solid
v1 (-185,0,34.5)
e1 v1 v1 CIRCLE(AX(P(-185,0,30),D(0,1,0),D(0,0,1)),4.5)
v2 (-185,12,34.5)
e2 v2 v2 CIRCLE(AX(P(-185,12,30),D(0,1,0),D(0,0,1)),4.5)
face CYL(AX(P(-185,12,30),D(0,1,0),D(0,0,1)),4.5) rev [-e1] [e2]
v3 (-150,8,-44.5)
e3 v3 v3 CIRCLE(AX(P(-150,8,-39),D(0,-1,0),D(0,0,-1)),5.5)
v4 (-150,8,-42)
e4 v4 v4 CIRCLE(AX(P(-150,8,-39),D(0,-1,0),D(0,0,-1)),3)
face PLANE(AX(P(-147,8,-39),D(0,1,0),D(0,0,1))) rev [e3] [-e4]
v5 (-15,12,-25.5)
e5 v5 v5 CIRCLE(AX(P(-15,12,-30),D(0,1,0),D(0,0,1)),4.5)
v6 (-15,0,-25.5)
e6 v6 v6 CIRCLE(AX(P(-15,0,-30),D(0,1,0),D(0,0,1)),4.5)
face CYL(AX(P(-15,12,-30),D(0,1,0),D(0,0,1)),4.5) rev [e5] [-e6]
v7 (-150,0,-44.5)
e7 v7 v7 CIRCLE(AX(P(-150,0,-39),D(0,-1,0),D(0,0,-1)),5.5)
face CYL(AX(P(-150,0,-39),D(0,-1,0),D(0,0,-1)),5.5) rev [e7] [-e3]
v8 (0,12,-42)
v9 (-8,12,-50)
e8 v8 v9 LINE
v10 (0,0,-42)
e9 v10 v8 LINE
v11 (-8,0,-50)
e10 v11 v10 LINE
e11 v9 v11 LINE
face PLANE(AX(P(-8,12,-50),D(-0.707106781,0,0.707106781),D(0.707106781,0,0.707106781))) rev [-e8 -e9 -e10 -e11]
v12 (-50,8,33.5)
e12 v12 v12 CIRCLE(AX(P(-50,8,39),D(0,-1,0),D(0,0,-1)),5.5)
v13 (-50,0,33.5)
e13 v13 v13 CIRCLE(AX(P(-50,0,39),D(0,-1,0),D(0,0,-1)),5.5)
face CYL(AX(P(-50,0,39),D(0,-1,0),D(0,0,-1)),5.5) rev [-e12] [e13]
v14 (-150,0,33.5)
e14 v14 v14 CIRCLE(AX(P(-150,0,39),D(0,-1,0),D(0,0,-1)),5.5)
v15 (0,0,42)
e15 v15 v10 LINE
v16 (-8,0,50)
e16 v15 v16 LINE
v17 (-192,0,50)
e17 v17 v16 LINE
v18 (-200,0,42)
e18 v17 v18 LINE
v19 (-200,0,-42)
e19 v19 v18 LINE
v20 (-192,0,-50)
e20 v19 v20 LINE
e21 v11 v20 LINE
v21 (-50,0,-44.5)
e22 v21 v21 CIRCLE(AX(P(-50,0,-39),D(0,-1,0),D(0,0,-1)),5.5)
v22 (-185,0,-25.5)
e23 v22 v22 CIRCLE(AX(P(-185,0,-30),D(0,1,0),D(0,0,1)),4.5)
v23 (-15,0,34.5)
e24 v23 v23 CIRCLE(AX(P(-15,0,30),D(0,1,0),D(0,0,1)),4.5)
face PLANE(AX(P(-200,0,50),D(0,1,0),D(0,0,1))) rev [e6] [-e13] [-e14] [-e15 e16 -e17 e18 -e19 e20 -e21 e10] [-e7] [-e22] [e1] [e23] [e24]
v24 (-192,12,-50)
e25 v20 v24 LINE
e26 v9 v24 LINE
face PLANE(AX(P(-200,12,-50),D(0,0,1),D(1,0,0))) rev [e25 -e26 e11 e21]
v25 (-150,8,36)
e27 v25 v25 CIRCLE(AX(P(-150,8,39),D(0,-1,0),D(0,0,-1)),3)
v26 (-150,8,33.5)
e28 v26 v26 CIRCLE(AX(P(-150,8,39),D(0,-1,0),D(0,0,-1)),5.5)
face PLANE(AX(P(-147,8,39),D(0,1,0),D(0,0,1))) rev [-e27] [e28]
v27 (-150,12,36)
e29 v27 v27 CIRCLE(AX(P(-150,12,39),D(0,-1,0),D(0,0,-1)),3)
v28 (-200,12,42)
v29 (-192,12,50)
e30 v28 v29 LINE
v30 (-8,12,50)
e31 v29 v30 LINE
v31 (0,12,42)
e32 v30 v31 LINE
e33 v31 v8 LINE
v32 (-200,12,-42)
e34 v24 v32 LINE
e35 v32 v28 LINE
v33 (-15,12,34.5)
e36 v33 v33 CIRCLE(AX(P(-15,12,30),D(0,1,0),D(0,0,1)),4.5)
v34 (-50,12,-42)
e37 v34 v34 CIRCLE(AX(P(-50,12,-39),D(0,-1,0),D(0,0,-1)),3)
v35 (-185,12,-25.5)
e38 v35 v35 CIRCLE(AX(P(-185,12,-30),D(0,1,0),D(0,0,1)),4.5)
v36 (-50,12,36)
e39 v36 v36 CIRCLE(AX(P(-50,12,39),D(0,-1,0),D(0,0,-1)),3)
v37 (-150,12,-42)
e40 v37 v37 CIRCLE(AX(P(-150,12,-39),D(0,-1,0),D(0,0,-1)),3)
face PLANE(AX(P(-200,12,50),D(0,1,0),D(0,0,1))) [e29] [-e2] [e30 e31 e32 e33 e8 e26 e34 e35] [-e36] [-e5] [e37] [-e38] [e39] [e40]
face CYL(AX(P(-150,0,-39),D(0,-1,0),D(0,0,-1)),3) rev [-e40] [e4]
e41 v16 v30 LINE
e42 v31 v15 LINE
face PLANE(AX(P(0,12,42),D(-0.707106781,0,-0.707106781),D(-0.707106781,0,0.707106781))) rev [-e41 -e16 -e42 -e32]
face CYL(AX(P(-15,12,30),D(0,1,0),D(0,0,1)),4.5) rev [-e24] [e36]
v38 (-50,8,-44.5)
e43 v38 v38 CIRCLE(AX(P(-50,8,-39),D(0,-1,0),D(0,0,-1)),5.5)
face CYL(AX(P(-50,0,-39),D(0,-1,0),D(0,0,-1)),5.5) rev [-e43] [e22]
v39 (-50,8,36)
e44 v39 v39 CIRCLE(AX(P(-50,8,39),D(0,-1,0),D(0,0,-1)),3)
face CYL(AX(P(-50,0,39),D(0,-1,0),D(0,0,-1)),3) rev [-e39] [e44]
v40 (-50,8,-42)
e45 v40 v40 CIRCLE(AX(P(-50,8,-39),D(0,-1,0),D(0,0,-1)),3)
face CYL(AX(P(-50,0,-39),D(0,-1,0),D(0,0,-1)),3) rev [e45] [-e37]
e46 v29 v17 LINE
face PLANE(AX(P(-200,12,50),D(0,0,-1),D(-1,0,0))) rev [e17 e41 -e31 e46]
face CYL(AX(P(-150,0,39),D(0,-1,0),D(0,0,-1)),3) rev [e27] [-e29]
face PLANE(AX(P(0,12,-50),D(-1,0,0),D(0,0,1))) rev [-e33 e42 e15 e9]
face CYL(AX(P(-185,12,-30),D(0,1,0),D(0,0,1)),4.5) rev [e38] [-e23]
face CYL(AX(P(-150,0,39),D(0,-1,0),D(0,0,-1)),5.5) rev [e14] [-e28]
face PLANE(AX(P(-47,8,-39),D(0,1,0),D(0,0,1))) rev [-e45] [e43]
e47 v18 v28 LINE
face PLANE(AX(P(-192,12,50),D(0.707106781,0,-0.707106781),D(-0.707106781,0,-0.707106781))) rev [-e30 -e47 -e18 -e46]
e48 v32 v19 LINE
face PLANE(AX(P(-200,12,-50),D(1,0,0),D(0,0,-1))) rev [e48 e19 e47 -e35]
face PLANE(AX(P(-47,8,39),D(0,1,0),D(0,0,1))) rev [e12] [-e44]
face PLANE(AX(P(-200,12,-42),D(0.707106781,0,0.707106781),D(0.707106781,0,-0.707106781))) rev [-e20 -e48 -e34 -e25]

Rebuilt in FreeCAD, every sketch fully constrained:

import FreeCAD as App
import Part
import Sketcher
from FreeCAD import Vector


def edges_at(feature, points):
    """Names of the edges that pass closest to the given points."""
    edges = feature.Shape.Edges
    near = lambda p: min(range(len(edges)), key=lambda i: edges[i].distToShape(Part.Vertex(*p))[0])
    return sorted({f"Edge{near(p) + 1}" for p in points})


def add_polygon(sketch, points):
    """Adds a closed chain of lines whose ends are joined by coincident constraints."""
    first, n = sketch.GeometryCount, len(points)
    for a, b in zip(points, points[1:] + points[:1]):
        sketch.addGeometry(Part.LineSegment(App.Vector(*a, 0), App.Vector(*b, 0)), False)
    for i in range(n):
        sketch.addConstraint(Sketcher.Constraint("Coincident", first + i, 2, first + (i + 1) % n, 1))

doc = App.newDocument("Part")
params = doc.addObject("Spreadsheet::Sheet", "Params")
for row, (alias, value) in enumerate([
    ("sketch1_width", "200 mm"),
    ("sketch1_height", "100 mm"),
    ("pad1_length", "12 mm"),
    ("sketch2_diameter", "9 mm"),
    ("hole_diameter", "9 mm"),
    ("sketch3_diameter", "6 mm"),
    ("hole2_diameter", "6 mm"),
    ("hole2_cbore_diameter", "11 mm"),
    ("hole2_cbore_depth", "8 mm"),
    ("chamfer_size", "8 mm"),
], start=1):
    params.set(f"A{row}", alias)
    params.set(f"B{row}", "=" + value)
    params.setAlias(f"B{row}", alias)

body = doc.addObject("PartDesign::Body", "Body")

# Sketch on XZ plane
sketch1 = body.newObject("Sketcher::SketchObject", "Sketch")
sketch1.AttachmentSupport = (doc.getObject("XZ_Plane"), [""])
sketch1.MapMode = "FlatFace"
add_polygon(sketch1, [(-200, -50), (-200, 50), (0, 50), (0, -50)])  # lines 0-3
sketch1.addConstraint(Sketcher.Constraint("Vertical", 0))
sketch1.addConstraint(Sketcher.Constraint("Horizontal", 1))
sketch1.addConstraint(Sketcher.Constraint("Vertical", 2))
sketch1.addConstraint(Sketcher.Constraint("Horizontal", 3))
sketch1.addConstraint(Sketcher.Constraint("Symmetric", 1, 2, 2, 2, -1, 1))
sketch1.addConstraint(Sketcher.Constraint("DistanceX", 1, 1, 1, 2, 200.0))
sketch1.addConstraint(Sketcher.Constraint("DistanceY", 0, 1, 0, 2, 100.0))
sketch1.setExpression("Constraints[9]", "Params.sketch1_width")
sketch1.setExpression("Constraints[10]", "Params.sketch1_height")
pad1 = body.newObject("PartDesign::Pad", "Pad")
pad1.Profile = sketch1
pad1.setExpression("Length", "Params.pad1_length")
pad1.Reversed = True

# Sketch on XZ plane
sketch2 = body.newObject("Sketcher::SketchObject", "Sketch001")
sketch2.AttachmentSupport = (doc.getObject("XZ_Plane"), [""])
sketch2.MapMode = "FlatFace"
sketch2.AttachmentOffset = App.Placement(Vector(0, 0, -12), App.Rotation())
sketch2.addGeometry(Part.Circle(Vector(-185, 30, 0), Vector(0, 0, 1), 4.5), False)
sketch2.addGeometry(Part.Circle(Vector(-15, 30, 0), Vector(0, 0, 1), 4.5), False)
sketch2.addGeometry(Part.Circle(Vector(-15, -30, 0), Vector(0, 0, 1), 4.5), False)
sketch2.addGeometry(Part.Circle(Vector(-185, -30, 0), Vector(0, 0, 1), 4.5), False)
sketch2.addConstraint(Sketcher.Constraint("Equal", 0, 1))
sketch2.addConstraint(Sketcher.Constraint("Equal", 1, 2))
sketch2.addConstraint(Sketcher.Constraint("Equal", 2, 3))
sketch2.addConstraint(Sketcher.Constraint("Symmetric", 1, 3, 2, 3, -1))
sketch2.addConstraint(Sketcher.Constraint("Symmetric", 0, 3, 3, 3, -1))
sketch2.addConstraint(Sketcher.Constraint("Horizontal", 0, 3, 1, 3))
sketch2.addConstraint(Sketcher.Constraint("Diameter", 0, 9.0))
sketch2.addConstraint(Sketcher.Constraint("DistanceX", 0, 3, -1, 1, 185.0))
sketch2.addConstraint(Sketcher.Constraint("DistanceY", -1, 1, 0, 3, 30.0))
sketch2.addConstraint(Sketcher.Constraint("DistanceX", 1, 3, -1, 1, 15.0))
sketch2.setExpression("Constraints[6]", "Params.sketch2_diameter")
doc.recompute()
hole = body.newObject("PartDesign::Hole", "Hole")
hole.Profile = sketch2
hole.ThreadType = "None"
hole.setExpression("Diameter", "Params.hole_diameter")
hole.DepthType = "ThroughAll"
hole.Reversed = True

# Sketch on XZ plane
sketch3 = body.newObject("Sketcher::SketchObject", "Sketch002")
sketch3.AttachmentSupport = (doc.getObject("XZ_Plane"), [""])
sketch3.MapMode = "FlatFace"
sketch3.addGeometry(Part.Circle(Vector(-150, 39, 0), Vector(0, 0, 1), 3), False)
sketch3.addGeometry(Part.Circle(Vector(-50, 39, 0), Vector(0, 0, 1), 3), False)
sketch3.addGeometry(Part.Circle(Vector(-150, -39, 0), Vector(0, 0, 1), 3), False)
sketch3.addGeometry(Part.Circle(Vector(-50, -39, 0), Vector(0, 0, 1), 3), False)
sketch3.addConstraint(Sketcher.Constraint("Equal", 0, 1))
sketch3.addConstraint(Sketcher.Constraint("Equal", 1, 2))
sketch3.addConstraint(Sketcher.Constraint("Equal", 2, 3))
sketch3.addConstraint(Sketcher.Constraint("Symmetric", 0, 3, 2, 3, -1))
sketch3.addConstraint(Sketcher.Constraint("Symmetric", 1, 3, 3, 3, -1))
sketch3.addConstraint(Sketcher.Constraint("Horizontal", 0, 3, 1, 3))
sketch3.addConstraint(Sketcher.Constraint("Diameter", 0, 6.0))
sketch3.addConstraint(Sketcher.Constraint("DistanceX", 0, 3, -1, 1, 150.0))
sketch3.addConstraint(Sketcher.Constraint("DistanceY", -1, 1, 0, 3, 39.0))
sketch3.addConstraint(Sketcher.Constraint("DistanceX", 1, 3, -1, 1, 50.0))
sketch3.setExpression("Constraints[6]", "Params.sketch3_diameter")
doc.recompute()
hole2 = body.newObject("PartDesign::Hole", "Hole001")
hole2.Profile = sketch3
hole2.ThreadType = "None"
hole2.setExpression("Diameter", "Params.hole2_diameter")
hole2.DepthType = "ThroughAll"
hole2.HoleCutType = "Counterbore"
hole2.setExpression("HoleCutDiameter", "Params.hole2_cbore_diameter")
hole2.setExpression("HoleCutDepth", "Params.hole2_cbore_depth")
doc.recompute()

chamfer = body.newObject("PartDesign::Chamfer", "Chamfer")
chamfer.Base = (hole2, edges_at(hole2, [
    (-200, 6, -50),
    (0, 6, -50),
    (0, 6, 50),
    (-200, 6, 50),
]))
chamfer.setExpression("Size", "Params.chamfer_size")

doc.recompute()
